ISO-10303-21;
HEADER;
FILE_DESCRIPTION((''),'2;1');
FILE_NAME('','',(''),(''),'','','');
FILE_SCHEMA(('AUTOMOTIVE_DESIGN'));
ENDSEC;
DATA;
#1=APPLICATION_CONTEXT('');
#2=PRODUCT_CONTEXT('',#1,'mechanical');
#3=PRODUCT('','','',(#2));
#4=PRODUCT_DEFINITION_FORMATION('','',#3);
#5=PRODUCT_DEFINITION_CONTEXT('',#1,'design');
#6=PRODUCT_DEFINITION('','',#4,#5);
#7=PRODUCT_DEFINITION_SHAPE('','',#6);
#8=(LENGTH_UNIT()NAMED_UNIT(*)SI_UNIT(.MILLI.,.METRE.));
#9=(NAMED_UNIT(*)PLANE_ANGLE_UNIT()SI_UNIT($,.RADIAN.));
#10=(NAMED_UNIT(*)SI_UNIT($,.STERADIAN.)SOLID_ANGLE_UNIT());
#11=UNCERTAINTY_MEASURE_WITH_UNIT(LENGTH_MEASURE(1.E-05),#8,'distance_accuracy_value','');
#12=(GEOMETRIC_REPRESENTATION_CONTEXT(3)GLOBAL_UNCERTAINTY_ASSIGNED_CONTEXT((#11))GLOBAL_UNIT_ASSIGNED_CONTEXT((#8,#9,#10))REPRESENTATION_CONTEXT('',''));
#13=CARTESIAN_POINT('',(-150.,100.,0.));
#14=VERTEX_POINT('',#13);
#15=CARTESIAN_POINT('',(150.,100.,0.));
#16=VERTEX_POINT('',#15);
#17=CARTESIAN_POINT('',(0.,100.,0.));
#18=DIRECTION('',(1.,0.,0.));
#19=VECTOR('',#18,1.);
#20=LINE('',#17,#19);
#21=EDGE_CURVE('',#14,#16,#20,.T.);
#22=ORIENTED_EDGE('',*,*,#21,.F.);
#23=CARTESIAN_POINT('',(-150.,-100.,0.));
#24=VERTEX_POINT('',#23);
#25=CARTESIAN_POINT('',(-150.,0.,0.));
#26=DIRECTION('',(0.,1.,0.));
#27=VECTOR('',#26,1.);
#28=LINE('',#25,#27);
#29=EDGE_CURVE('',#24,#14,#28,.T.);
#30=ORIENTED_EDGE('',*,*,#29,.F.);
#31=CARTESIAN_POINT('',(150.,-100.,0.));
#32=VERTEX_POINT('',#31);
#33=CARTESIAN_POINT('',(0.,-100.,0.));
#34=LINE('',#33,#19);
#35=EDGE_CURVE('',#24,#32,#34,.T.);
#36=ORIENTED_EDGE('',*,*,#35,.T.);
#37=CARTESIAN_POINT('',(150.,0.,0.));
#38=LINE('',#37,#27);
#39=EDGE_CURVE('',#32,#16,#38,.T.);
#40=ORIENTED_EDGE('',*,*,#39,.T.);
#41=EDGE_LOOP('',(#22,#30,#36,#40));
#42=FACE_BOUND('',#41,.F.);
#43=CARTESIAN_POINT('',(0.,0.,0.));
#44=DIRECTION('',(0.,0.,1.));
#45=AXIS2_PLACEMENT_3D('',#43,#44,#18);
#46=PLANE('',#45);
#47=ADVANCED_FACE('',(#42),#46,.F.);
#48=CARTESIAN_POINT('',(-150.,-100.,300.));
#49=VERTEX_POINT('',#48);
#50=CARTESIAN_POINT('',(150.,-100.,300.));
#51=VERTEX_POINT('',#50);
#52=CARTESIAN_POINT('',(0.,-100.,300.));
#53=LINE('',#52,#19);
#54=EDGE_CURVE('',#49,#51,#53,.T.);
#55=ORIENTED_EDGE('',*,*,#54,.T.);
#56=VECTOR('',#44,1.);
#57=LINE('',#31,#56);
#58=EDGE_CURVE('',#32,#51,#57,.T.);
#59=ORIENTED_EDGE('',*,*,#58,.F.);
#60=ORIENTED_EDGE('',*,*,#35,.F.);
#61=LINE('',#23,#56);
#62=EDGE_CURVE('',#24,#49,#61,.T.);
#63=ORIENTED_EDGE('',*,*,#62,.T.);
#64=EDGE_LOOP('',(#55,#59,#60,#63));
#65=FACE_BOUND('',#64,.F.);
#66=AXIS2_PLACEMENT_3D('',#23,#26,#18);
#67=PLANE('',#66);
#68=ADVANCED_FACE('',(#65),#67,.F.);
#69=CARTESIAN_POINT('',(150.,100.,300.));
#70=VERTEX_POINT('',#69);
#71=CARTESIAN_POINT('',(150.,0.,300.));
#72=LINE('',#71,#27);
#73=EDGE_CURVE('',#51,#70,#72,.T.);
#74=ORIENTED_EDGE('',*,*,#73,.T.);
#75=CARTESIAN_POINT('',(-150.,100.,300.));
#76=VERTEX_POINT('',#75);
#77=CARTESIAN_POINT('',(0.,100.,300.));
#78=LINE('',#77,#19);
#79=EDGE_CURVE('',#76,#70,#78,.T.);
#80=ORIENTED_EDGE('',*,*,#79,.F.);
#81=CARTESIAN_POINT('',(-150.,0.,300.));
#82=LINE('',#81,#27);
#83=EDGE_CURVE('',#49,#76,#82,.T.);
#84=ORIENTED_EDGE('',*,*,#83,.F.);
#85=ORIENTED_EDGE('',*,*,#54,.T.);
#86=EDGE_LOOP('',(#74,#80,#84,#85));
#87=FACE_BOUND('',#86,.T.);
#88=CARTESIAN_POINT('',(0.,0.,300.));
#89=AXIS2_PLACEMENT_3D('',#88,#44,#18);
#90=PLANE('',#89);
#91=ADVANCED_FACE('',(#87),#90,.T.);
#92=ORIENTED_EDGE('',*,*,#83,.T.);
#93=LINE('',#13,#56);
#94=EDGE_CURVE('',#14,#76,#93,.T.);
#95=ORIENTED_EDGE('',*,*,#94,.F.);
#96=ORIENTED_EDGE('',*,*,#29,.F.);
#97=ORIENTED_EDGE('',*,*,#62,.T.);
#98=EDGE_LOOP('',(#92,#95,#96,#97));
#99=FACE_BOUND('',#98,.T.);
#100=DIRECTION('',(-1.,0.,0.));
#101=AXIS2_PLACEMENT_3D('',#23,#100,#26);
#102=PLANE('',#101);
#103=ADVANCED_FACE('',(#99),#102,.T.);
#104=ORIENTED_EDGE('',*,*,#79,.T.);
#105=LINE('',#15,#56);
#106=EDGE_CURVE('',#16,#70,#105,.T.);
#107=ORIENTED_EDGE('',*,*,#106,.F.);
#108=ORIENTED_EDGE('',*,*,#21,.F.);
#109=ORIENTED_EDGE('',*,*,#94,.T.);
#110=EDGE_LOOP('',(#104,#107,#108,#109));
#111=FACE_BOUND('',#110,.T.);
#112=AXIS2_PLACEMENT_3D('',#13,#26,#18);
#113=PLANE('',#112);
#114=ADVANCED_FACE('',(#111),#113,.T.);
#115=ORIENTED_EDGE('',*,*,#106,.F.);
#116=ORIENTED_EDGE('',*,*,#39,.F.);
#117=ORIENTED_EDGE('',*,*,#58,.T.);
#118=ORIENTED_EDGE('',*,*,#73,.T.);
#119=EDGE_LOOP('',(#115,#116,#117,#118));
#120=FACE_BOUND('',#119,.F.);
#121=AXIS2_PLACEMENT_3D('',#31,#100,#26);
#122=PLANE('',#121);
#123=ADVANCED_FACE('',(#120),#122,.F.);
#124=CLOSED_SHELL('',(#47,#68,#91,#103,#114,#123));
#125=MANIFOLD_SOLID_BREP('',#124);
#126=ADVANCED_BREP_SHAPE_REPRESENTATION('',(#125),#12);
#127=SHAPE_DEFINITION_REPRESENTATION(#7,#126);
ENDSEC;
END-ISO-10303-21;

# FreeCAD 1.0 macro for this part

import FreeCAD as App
import Part
import Sketcher
Q = App.Units.Quantity


def add_polygon(sketch, points):
    """Adds a closed chain of lines whose ends are joined by coincident constraints."""
    first, n = sketch.GeometryCount, len(points)
    for a, b in zip(points, points[1:] + points[:1]):
        sketch.addGeometry(Part.LineSegment(App.Vector(*a, 0), App.Vector(*b, 0)), False)
    for i in range(n):
        sketch.addConstraint(Sketcher.Constraint("Coincident", first + i, 2, first + (i + 1) % n, 1))

doc = App.newDocument("Part")
body = doc.addObject("PartDesign::Body", "Body")

sketch1 = body.newObject("Sketcher::SketchObject", "Sketch")
sketch1.AttachmentSupport = (doc.getObject("XY_Plane"), [""])
sketch1.MapMode = "FlatFace"
add_polygon(sketch1, [(-150, 100), (-150, -100), (150, -100), (150, 100)])
sketch1.addConstraint([
    Sketcher.Constraint("Vertical", 0),
    Sketcher.Constraint("Horizontal", 1),
    Sketcher.Constraint("Vertical", 2),
    Sketcher.Constraint("Horizontal", 3),
    Sketcher.Constraint("Symmetric", 0, 2, 2, 2, -1, 1),
    Sketcher.Constraint("DistanceX", 1, 1, 1, 2, Q("300 mm")),
    Sketcher.Constraint("DistanceY", 0, 2, 0, 1, Q("200 mm")),
])
pad1 = body.newObject("PartDesign::Pad", "Pad")
pad1.Profile = sketch1
pad1.Length = 300

doc.recompute()
